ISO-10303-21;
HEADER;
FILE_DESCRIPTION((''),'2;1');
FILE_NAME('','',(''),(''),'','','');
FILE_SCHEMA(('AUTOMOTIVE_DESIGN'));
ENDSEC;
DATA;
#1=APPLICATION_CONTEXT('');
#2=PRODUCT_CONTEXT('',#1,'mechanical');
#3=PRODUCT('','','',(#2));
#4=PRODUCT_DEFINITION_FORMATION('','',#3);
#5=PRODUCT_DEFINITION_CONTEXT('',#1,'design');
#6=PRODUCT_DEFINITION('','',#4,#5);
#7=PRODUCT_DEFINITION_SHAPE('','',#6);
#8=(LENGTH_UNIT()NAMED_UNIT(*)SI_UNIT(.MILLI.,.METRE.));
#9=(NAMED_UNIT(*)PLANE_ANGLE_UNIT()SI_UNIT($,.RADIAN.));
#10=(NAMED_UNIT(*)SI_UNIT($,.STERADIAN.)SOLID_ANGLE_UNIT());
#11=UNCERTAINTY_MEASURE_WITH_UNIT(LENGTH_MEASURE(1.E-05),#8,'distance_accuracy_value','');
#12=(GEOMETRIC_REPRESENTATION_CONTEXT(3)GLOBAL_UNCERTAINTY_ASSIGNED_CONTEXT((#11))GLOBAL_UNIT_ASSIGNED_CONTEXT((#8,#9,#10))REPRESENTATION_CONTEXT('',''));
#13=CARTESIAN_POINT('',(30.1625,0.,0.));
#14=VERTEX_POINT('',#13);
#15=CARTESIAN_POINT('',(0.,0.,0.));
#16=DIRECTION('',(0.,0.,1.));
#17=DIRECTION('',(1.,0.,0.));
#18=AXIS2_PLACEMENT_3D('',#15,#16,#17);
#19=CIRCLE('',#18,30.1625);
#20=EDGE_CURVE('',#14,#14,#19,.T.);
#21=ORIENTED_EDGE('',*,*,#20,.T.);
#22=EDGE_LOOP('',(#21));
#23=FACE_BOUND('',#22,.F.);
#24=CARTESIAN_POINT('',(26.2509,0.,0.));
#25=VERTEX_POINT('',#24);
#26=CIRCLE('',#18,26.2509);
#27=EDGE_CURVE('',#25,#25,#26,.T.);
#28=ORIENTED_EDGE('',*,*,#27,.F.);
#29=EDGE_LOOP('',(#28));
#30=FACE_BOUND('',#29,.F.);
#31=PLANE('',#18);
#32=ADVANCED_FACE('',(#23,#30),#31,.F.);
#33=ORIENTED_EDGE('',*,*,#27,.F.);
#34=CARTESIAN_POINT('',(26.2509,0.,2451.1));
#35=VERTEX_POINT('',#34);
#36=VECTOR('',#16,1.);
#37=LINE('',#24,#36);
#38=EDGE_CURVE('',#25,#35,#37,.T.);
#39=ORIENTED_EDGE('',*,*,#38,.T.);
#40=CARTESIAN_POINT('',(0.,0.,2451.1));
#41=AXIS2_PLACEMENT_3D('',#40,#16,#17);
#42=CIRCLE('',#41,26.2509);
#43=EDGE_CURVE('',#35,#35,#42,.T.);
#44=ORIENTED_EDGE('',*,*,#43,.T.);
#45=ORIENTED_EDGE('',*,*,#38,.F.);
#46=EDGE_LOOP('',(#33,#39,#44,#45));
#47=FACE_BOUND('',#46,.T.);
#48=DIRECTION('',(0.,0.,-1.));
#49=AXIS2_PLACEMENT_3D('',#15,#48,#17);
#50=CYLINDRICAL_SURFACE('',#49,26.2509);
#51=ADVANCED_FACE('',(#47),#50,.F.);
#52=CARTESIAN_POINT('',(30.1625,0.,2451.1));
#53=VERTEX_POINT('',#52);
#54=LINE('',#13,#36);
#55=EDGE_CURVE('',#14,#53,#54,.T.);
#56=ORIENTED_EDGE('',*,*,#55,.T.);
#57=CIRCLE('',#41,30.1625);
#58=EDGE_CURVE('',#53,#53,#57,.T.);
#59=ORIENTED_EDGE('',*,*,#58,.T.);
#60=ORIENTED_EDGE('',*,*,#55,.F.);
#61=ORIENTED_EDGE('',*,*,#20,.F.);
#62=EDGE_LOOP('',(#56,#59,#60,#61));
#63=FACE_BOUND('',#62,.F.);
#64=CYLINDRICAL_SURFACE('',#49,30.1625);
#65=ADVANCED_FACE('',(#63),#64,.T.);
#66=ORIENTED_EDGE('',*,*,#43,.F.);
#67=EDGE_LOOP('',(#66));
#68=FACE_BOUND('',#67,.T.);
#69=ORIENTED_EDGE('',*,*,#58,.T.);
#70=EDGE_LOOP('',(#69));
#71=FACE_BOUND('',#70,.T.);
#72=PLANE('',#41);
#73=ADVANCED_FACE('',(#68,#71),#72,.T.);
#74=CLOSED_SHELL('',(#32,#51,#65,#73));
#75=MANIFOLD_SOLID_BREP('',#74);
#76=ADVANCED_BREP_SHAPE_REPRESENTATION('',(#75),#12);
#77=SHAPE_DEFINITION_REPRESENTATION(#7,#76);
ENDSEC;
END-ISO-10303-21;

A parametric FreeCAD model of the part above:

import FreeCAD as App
import Part
import Sketcher

V = App.Vector
Q = App.Units.Quantity

doc = App.newDocument("Part")
body = doc.addObject("PartDesign::Body", "Body")

# Sketch on XY plane
sketch1 = body.newObject("Sketcher::SketchObject", "Sketch")
sketch1.AttachmentSupport = (doc.getObject("XY_Plane"), [""])
sketch1.MapMode = "FlatFace"
sketch1.addGeometry([
    Part.Circle(V(0, 0, 0), V(0, 0, 1), 30),
    Part.Circle(V(0, 0, 0), V(0, 0, 1), 26),
], False)
sketch1.addConstraint([
    Sketcher.Constraint("Coincident", 0, 3, -1, 1),
    Sketcher.Constraint("Coincident", 1, 3, -1, 1),
    Sketcher.Constraint("Diameter", 0, Q("2.375 in")),
    Sketcher.Constraint("Diameter", 1, Q("2.067 in")),
])
pad1 = body.newObject("PartDesign::Pad", "Pad")
pad1.Profile = sketch1
pad1.Length = Q("96.5 in")

doc.recompute()
